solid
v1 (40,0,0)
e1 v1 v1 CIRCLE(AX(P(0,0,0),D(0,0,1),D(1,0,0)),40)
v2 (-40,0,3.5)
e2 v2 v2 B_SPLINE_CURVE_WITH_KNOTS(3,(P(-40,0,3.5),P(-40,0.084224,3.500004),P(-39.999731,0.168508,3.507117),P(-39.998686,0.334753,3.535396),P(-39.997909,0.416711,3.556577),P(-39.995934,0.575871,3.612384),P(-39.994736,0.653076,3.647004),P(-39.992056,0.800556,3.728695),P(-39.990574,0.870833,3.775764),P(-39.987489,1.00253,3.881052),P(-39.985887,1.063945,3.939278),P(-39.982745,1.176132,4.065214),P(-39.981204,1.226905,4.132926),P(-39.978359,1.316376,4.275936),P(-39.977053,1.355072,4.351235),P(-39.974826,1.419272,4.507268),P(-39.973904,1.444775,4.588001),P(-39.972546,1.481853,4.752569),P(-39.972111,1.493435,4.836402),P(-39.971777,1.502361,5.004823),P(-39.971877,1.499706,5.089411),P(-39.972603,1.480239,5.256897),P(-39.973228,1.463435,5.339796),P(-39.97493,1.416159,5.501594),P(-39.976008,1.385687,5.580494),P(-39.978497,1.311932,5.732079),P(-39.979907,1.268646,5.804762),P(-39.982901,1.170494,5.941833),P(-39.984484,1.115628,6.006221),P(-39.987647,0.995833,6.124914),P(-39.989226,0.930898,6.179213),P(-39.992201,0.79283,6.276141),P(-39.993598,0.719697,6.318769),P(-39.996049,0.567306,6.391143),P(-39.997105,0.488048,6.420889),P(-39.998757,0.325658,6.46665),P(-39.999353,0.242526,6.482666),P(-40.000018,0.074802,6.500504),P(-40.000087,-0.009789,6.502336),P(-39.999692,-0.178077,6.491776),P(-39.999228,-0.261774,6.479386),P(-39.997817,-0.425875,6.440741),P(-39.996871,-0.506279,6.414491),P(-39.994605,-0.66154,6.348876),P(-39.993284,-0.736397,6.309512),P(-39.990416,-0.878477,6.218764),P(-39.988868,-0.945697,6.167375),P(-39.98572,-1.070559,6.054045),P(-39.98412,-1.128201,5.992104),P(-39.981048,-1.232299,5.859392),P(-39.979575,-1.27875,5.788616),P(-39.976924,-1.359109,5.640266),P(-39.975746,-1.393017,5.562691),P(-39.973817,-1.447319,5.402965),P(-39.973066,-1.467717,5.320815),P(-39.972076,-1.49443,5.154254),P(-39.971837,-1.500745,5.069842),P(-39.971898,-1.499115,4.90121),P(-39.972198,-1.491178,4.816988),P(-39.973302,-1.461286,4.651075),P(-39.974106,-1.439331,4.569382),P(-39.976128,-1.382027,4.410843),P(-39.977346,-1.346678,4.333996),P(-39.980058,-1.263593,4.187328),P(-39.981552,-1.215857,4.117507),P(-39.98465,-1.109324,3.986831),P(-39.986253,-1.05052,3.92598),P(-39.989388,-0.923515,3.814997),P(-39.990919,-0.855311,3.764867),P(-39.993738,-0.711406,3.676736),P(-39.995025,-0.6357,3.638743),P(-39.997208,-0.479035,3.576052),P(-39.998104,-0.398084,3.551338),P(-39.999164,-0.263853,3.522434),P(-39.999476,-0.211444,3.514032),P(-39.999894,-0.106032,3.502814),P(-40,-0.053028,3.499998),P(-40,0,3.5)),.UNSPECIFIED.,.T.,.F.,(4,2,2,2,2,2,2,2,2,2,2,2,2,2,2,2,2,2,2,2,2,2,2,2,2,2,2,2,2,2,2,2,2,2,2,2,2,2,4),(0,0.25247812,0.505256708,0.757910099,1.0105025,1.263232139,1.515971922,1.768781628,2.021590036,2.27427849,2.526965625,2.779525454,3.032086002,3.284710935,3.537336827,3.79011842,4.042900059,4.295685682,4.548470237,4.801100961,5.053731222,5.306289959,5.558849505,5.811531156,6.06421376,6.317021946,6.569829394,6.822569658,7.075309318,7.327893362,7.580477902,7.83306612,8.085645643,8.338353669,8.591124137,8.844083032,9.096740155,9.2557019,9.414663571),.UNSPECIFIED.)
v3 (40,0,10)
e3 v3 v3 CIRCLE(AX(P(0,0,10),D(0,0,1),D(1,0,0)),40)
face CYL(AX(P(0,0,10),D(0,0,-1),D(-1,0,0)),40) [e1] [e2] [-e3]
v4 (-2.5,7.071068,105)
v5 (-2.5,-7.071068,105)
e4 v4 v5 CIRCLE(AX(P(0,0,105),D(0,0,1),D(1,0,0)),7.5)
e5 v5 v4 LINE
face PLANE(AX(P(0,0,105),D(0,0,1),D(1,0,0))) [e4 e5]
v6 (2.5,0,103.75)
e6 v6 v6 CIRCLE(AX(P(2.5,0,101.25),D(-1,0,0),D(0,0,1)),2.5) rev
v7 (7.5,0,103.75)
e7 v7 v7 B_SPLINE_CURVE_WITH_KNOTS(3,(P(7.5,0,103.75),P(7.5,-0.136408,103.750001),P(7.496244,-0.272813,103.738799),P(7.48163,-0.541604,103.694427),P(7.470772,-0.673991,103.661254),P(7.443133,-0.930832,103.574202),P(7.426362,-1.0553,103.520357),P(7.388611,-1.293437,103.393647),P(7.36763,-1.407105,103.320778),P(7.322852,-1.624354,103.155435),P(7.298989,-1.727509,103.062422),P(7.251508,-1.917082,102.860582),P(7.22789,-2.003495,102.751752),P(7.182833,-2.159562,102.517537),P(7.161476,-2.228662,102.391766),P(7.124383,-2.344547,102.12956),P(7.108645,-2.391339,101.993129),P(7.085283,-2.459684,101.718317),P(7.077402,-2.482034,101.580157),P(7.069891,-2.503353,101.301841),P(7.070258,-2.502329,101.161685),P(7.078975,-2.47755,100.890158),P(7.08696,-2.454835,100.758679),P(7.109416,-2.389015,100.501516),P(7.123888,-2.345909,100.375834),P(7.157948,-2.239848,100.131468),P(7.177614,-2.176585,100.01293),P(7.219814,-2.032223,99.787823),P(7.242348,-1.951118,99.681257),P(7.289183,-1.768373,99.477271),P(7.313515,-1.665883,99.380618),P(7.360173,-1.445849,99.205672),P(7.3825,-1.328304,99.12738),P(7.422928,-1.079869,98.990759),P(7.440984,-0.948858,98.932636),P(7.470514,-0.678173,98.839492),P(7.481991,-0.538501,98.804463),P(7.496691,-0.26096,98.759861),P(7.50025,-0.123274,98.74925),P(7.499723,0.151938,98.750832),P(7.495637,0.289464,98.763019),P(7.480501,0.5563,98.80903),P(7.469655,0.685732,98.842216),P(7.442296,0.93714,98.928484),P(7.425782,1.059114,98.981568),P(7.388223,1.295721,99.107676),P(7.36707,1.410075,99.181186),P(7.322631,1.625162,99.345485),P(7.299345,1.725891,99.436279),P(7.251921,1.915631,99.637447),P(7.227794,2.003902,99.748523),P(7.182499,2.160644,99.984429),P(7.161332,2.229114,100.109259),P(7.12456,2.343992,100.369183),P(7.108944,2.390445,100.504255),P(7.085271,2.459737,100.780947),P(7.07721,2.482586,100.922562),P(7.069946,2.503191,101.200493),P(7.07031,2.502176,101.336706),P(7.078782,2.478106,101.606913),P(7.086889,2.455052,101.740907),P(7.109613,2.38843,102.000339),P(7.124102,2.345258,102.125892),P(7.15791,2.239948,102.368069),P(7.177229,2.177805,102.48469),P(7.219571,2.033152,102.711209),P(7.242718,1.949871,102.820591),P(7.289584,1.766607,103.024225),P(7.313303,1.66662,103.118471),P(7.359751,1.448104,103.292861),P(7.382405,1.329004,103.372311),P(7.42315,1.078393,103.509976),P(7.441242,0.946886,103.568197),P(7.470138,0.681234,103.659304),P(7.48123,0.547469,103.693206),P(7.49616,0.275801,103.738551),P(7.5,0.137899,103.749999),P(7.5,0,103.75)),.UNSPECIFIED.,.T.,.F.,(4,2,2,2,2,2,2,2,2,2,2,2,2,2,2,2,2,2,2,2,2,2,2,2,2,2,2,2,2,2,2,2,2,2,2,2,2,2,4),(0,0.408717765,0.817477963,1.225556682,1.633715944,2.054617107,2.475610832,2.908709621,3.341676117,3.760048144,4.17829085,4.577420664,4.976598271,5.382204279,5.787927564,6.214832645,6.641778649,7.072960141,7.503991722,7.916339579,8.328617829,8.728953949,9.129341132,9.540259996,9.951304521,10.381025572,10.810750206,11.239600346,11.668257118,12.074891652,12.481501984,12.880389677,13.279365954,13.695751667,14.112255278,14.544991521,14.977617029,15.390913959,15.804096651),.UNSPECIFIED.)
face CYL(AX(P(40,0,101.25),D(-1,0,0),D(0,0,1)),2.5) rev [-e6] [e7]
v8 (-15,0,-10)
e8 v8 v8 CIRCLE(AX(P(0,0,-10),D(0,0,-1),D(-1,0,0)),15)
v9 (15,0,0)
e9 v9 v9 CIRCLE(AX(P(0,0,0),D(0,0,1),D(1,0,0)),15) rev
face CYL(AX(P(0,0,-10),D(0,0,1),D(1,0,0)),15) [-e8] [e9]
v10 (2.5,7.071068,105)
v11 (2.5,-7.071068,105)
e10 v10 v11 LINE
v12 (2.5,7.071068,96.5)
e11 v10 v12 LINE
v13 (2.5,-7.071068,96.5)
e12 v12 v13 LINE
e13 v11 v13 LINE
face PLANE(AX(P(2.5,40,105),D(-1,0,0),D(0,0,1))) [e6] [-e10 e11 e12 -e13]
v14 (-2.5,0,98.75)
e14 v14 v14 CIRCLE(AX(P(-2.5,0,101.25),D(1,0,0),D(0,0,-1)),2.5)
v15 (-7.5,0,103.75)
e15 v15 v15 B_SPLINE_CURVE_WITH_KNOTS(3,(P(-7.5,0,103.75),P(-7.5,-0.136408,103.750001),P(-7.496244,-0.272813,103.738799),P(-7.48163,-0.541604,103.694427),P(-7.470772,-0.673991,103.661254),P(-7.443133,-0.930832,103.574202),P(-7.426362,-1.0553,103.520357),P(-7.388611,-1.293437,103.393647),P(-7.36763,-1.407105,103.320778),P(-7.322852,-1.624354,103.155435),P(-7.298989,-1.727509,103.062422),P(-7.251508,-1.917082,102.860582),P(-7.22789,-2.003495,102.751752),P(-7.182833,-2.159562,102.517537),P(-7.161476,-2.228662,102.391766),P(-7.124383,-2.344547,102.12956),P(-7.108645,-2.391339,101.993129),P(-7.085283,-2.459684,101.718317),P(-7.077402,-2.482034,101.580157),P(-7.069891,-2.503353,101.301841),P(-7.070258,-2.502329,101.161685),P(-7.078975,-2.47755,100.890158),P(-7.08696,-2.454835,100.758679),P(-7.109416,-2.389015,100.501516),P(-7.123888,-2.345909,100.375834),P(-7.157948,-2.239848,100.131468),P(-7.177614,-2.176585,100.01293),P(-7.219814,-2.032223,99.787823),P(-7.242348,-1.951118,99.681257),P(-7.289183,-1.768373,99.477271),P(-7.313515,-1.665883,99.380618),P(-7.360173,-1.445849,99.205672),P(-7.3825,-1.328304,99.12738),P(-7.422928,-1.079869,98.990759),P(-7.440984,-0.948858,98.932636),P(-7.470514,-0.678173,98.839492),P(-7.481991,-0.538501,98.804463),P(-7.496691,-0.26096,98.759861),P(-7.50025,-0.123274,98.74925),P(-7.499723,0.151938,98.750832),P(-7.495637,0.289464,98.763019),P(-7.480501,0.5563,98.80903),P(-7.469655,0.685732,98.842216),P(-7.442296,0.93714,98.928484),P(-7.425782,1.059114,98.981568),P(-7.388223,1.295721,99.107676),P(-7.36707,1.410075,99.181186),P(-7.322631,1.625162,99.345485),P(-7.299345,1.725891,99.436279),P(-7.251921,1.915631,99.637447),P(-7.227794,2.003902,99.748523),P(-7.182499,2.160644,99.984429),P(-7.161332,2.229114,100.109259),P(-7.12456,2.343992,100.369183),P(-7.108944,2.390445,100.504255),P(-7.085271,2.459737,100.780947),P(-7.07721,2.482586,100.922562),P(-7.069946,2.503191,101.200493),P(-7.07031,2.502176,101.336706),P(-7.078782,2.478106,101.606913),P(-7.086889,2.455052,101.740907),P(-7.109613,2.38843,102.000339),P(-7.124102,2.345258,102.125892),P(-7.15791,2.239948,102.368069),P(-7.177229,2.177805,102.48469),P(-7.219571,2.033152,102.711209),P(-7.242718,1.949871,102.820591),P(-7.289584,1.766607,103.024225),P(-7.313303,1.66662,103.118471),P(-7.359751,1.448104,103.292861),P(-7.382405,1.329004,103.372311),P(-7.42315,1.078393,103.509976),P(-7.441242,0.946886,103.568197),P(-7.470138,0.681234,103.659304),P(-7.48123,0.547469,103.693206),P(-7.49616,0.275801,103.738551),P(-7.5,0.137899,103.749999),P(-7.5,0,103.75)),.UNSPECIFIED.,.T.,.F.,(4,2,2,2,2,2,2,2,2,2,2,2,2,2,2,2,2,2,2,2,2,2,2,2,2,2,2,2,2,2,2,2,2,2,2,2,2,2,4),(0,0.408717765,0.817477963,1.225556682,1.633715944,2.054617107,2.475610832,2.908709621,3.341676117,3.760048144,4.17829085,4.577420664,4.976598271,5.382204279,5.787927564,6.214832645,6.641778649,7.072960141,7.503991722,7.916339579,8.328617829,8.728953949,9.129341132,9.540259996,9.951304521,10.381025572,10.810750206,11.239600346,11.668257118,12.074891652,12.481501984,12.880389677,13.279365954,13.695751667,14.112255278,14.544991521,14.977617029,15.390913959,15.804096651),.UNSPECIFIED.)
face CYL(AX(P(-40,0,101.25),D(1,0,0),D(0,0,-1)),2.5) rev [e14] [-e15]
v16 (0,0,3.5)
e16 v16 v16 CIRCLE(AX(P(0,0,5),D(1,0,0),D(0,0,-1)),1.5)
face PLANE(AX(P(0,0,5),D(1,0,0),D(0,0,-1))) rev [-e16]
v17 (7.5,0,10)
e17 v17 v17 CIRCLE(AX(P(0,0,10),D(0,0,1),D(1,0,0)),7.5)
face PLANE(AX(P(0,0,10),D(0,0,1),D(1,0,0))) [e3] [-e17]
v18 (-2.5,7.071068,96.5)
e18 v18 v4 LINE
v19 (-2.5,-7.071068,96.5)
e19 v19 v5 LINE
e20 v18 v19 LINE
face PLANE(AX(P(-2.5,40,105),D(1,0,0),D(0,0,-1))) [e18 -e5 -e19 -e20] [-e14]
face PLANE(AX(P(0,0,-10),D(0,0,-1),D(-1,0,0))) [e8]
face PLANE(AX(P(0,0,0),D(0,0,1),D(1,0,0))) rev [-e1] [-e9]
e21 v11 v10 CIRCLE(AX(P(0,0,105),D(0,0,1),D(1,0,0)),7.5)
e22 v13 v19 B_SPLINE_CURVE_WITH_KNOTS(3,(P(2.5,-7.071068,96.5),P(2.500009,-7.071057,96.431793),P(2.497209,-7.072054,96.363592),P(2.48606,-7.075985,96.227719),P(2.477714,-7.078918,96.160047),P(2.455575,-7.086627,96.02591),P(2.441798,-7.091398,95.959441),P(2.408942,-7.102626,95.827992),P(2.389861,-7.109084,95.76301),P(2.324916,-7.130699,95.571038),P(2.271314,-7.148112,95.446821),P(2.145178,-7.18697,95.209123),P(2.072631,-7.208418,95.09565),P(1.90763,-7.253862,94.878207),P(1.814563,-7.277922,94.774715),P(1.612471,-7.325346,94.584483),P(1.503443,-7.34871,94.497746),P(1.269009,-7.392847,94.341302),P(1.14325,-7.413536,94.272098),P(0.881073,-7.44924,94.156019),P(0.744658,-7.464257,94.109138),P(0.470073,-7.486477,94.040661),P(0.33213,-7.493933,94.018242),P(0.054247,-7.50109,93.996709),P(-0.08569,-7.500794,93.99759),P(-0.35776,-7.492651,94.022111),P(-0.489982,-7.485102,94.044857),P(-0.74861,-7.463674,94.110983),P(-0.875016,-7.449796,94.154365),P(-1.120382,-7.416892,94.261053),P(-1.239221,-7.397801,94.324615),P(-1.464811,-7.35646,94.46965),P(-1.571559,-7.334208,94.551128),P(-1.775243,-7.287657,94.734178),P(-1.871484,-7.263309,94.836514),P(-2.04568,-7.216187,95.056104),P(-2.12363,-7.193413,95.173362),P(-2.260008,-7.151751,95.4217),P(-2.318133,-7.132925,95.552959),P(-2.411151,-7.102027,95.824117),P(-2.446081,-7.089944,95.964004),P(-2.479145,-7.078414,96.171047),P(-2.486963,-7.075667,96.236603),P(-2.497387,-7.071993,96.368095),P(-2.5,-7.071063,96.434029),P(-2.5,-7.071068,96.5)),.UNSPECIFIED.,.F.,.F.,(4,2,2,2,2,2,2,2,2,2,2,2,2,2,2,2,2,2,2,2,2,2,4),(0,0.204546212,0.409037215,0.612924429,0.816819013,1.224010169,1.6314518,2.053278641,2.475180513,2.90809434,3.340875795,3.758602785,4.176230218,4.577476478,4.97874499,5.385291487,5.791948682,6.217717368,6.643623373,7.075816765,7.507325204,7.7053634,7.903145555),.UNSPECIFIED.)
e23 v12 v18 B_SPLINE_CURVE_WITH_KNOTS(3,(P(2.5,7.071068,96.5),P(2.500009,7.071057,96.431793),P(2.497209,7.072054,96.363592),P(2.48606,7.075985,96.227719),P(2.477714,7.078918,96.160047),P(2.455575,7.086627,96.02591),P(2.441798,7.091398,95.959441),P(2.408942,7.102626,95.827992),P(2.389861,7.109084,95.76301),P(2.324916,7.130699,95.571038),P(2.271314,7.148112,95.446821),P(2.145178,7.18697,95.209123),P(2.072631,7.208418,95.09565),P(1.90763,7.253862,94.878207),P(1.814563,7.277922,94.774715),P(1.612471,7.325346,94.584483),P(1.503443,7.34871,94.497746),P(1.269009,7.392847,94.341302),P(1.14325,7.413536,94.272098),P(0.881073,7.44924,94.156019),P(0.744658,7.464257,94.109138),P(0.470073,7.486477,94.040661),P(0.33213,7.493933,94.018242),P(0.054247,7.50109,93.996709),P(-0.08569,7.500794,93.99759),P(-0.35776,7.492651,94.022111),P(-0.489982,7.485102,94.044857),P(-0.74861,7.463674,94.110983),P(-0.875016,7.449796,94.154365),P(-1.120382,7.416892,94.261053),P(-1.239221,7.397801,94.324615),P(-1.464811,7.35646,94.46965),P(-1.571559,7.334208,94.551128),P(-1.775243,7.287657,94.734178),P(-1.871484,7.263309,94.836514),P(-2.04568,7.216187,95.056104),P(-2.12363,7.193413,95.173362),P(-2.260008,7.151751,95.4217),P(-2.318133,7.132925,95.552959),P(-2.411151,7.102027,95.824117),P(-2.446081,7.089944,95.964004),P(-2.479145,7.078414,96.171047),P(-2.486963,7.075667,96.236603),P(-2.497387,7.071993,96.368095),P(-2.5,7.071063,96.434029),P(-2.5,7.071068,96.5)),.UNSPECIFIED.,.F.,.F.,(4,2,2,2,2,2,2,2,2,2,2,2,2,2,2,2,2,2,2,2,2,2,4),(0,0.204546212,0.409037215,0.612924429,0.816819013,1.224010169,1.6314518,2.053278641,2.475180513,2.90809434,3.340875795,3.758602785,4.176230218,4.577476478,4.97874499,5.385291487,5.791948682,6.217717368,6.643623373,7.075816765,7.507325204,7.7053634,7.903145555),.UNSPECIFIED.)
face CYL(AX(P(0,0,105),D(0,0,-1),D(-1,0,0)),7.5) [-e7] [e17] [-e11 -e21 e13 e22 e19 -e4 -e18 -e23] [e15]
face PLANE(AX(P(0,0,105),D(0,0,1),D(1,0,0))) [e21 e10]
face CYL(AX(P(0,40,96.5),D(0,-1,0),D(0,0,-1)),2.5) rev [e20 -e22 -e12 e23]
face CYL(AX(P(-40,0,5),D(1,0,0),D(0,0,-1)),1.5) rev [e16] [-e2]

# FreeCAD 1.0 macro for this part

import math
import FreeCAD as App
import Part
import Sketcher

V = App.Vector

doc = App.newDocument("Part")
body = doc.addObject("PartDesign::Body", "Body")

sketch1 = body.newObject("Sketcher::SketchObject", "Sketch")
sketch1.AttachmentSupport = (doc.getObject("XY_Plane"), [""])
sketch1.MapMode = "FlatFace"
sketch1.addGeometry(Part.Circle(V(0, 0, 0), V(0, 0, 1), 40), False)
sketch1.addConstraint([
    Sketcher.Constraint("Coincident", 0, 3, -1, 1),
    Sketcher.Constraint("Diameter", 0, 80.0),
])
pad1 = body.newObject("PartDesign::Pad", "Pad")
pad1.Profile = sketch1
pad1.Length = 10

sketch2 = body.newObject("Sketcher::SketchObject", "Sketch001")
sketch2.AttachmentSupport = (doc.getObject("XY_Plane"), [""])
sketch2.MapMode = "FlatFace"
sketch2.addGeometry(Part.Circle(V(0, 0, 0), V(0, 0, 1), 15), False)
sketch2.addConstraint([
    Sketcher.Constraint("Coincident", 0, 3, -1, 1),
    Sketcher.Constraint("Diameter", 0, 30.0),
])
pad2 = body.newObject("PartDesign::Pad", "Pad001")
pad2.Profile = sketch2
pad2.Length = 10
pad2.Reversed = True

sketch3 = body.newObject("Sketcher::SketchObject", "Sketch002")
sketch3.AttachmentSupport = (doc.getObject("XY_Plane"), [""])
sketch3.MapMode = "FlatFace"
sketch3.AttachmentOffset = App.Placement(V(0, 0, 10), App.Rotation())
sketch3.addGeometry(Part.Circle(V(0, 0, 0), V(0, 0, 1), 7.5), False)
sketch3.addConstraint([
    Sketcher.Constraint("Coincident", 0, 3, -1, 1),
    Sketcher.Constraint("Diameter", 0, 15.0),
])
pad3 = body.newObject("PartDesign::Pad", "Pad002")
pad3.Profile = sketch3
pad3.Length = 95

sketch4 = body.newObject("Sketcher::SketchObject", "Sketch003")
sketch4.AttachmentSupport = (doc.getObject("XZ_Plane"), [""])
sketch4.MapMode = "FlatFace"
sketch4.addGeometry([
    Part.LineSegment(V(-2.5, 105, 0), V(2.5, 105, 0)),
    Part.LineSegment(V(2.5, 105, 0), V(2.5, 96.5, 0)),
    Part.ArcOfCircle(Part.Circle(V(0, 96.5, 0), V(0, 0, 1), 2.5), math.radians(180), math.radians(360)),
    Part.LineSegment(V(-2.5, 96.5, 0), V(-2.5, 105, 0)),
], False)
sketch4.addConstraint([
    Sketcher.Constraint("Coincident", 0, 2, 1, 1),
    Sketcher.Constraint("Tangent", 1, 2, 2, 2),
    Sketcher.Constraint("Tangent", 2, 1, 3, 1),
    Sketcher.Constraint("Coincident", 3, 2, 0, 1),
    Sketcher.Constraint("Horizontal", 0),
    Sketcher.Constraint("Vertical", 1),
    Sketcher.Constraint("Vertical", 3),
    Sketcher.Constraint("PointOnObject", 2, 3, -2),
    Sketcher.Constraint("Radius", 2, 2.5),
    Sketcher.Constraint("DistanceY", 1, 2, 1, 1, 8.5),
    Sketcher.Constraint("DistanceY", -1, 1, 0, 2, 105.0),
])
pocket1 = body.newObject("PartDesign::Pocket", "Pocket")
pocket1.Profile = sketch4
pocket1.Type = "ThroughAll"
doc.recompute()

mirrored = body.newObject("PartDesign::Mirrored", "Mirrored")
mirrored.Originals = [pocket1]
mirrored.MirrorPlane = (doc.getObject("XZ_Plane"), [""])
body.Tip = mirrored

sketch5 = body.newObject("Sketcher::SketchObject", "Sketch004")
sketch5.AttachmentSupport = (doc.getObject("YZ_Plane"), [""])
sketch5.MapMode = "FlatFace"
sketch5.addGeometry(Part.Circle(V(0, 101.25, 0), V(0, 0, 1), 2.5), False)
sketch5.addConstraint([
    Sketcher.Constraint("PointOnObject", 0, 3, -2),
    Sketcher.Constraint("Diameter", 0, 5.0),
    Sketcher.Constraint("DistanceY", -1, 1, 0, 3, 101.25),
])
pocket2 = body.newObject("PartDesign::Pocket", "Pocket001")
pocket2.Profile = sketch5
pocket2.Type = "ThroughAll"
doc.recompute()

mirrored2 = body.newObject("PartDesign::Mirrored", "Mirrored001")
mirrored2.Originals = [pocket2]
mirrored2.MirrorPlane = (doc.getObject("YZ_Plane"), [""])
body.Tip = mirrored2

sketch6 = body.newObject("Sketcher::SketchObject", "Sketch005")
sketch6.AttachmentSupport = (doc.getObject("YZ_Plane"), [""])
sketch6.MapMode = "FlatFace"
sketch6.addGeometry(Part.Circle(V(0, 5, 0), V(0, 0, 1), 1.5), False)
sketch6.addConstraint([
    Sketcher.Constraint("PointOnObject", 0, 3, -2),
    Sketcher.Constraint("Diameter", 0, 3.0),
    Sketcher.Constraint("DistanceY", -1, 1, 0, 3, 5.0),
])
pocket3 = body.newObject("PartDesign::Pocket", "Pocket002")
pocket3.Profile = sketch6
pocket3.Type = "ThroughAll"

doc.recompute()
